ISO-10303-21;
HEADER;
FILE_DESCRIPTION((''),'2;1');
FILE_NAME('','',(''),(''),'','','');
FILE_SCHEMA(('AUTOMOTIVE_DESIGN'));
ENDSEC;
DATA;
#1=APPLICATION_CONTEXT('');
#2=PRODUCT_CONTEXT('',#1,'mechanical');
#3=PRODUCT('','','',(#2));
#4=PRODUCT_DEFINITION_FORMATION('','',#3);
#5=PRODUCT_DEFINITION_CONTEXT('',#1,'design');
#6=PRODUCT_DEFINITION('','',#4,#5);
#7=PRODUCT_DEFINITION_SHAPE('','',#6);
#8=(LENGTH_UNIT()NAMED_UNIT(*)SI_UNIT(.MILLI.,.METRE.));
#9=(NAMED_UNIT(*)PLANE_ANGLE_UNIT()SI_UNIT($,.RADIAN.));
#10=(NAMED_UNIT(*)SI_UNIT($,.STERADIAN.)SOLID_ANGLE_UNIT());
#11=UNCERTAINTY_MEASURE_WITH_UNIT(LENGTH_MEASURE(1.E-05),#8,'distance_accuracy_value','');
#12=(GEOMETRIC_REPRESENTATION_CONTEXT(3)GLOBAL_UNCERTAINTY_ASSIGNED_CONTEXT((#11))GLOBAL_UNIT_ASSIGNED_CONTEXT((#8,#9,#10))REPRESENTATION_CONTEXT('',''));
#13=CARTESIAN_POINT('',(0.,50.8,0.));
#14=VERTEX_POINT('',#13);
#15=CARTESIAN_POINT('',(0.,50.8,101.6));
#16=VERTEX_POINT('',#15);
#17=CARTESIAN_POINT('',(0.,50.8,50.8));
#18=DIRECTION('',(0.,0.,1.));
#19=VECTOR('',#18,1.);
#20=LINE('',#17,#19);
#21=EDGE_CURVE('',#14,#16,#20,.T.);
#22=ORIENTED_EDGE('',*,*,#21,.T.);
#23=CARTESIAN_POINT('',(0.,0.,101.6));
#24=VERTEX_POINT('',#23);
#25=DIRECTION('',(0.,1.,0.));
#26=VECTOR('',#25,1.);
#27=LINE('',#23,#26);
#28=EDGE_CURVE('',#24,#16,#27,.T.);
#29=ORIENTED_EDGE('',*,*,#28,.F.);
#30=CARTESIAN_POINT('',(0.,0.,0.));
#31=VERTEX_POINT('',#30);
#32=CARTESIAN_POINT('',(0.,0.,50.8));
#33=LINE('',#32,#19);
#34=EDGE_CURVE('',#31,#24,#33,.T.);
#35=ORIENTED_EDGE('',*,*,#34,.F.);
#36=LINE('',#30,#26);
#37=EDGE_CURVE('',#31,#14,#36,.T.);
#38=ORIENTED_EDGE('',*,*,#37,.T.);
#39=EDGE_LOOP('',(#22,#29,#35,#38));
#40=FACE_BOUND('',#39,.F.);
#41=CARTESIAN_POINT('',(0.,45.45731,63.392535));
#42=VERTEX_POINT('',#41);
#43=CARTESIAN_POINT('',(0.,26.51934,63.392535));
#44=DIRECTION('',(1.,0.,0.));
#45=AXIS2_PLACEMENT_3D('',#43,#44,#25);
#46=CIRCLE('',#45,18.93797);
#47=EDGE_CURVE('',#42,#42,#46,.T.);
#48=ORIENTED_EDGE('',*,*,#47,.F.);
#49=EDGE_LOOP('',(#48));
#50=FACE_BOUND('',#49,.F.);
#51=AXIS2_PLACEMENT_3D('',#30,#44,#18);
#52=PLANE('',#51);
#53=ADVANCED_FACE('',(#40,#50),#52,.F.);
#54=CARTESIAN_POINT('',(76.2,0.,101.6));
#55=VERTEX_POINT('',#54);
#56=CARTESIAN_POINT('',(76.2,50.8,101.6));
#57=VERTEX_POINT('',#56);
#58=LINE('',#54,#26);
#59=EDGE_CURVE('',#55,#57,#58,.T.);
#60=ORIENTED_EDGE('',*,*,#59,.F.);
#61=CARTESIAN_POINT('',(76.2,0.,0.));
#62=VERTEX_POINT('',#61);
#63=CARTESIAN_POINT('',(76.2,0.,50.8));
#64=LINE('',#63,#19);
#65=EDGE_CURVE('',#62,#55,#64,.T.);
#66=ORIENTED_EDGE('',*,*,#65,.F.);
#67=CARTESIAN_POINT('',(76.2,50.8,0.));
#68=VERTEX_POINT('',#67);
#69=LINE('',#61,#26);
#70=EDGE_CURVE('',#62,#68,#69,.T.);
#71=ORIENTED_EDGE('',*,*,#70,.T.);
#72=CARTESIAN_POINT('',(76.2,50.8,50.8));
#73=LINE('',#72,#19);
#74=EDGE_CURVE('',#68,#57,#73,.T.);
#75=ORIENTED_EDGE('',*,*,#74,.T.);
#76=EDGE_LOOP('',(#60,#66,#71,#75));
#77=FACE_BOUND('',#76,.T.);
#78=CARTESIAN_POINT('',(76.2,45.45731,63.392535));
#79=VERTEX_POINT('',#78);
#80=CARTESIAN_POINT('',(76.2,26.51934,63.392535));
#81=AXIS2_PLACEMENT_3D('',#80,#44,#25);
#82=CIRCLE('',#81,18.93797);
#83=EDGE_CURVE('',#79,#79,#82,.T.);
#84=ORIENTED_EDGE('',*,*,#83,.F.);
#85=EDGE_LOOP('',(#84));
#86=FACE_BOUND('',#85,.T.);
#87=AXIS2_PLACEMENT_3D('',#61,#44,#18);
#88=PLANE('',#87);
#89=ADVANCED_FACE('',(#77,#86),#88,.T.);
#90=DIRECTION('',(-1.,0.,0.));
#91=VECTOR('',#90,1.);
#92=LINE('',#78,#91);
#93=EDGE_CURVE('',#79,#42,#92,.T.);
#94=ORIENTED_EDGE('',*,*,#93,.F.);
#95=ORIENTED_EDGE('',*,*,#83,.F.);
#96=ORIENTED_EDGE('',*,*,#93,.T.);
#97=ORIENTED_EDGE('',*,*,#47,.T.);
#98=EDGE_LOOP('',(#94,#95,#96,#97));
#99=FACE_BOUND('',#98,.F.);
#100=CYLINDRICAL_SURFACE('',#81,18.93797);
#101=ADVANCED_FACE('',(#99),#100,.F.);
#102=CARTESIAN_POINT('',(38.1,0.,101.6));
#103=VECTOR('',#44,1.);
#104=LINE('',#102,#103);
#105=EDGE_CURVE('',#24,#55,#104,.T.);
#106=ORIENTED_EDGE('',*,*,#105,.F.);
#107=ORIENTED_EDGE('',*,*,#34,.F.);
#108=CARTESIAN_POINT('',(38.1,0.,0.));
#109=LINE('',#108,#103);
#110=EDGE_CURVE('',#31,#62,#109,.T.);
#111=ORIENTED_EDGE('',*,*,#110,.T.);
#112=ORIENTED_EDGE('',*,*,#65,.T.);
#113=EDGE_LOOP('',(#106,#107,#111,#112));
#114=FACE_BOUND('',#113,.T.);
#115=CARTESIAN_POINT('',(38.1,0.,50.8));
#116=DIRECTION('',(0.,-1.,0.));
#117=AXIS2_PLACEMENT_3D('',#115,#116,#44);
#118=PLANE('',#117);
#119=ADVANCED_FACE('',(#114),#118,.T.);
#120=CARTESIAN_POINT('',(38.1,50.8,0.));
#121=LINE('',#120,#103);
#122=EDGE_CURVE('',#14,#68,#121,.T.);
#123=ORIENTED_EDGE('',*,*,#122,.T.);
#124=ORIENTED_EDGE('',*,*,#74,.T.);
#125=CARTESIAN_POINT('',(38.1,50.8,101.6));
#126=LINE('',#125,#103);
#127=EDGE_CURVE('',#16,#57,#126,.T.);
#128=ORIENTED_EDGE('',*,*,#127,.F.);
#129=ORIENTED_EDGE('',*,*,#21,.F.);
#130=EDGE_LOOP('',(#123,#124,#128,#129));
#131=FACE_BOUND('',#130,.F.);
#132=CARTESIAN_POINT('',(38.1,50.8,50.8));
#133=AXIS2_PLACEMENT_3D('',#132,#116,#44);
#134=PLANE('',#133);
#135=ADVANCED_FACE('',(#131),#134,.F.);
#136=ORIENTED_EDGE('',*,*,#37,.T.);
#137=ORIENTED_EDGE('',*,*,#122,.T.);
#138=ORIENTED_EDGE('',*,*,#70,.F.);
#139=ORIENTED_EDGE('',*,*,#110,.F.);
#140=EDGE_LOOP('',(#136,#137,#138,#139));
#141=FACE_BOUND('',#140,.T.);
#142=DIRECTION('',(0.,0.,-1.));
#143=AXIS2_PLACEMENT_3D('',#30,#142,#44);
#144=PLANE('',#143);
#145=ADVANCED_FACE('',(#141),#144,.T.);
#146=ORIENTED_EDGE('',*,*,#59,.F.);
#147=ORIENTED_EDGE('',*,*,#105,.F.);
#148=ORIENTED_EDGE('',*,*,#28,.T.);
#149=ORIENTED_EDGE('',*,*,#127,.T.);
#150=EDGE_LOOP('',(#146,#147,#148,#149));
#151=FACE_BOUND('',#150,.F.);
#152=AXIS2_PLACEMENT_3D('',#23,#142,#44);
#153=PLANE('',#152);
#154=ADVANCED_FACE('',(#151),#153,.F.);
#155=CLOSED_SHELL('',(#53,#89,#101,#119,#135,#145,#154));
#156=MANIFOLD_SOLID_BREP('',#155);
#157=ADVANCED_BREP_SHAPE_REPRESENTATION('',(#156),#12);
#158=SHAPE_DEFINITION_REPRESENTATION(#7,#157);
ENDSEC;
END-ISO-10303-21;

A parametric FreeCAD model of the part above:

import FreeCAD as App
import Part
import Sketcher

V = App.Vector
Q = App.Units.Quantity

doc = App.newDocument("Part")
body = doc.addObject("PartDesign::Body", "Body")

# Sketch on XZ plane
sketch1 = body.newObject("Sketcher::SketchObject", "Sketch")
sketch1.AttachmentSupport = (doc.getObject("XZ_Plane"), [""])
sketch1.MapMode = "FlatFace"
sketch1.addGeometry(Part.LineSegment(V(0, 102, 0), V(0, 0, 0)), False)
sketch1.addGeometry(Part.LineSegment(V(0, 0, 0), V(76, 0, 0)), False)
sketch1.addGeometry(Part.LineSegment(V(76, 0, 0), V(76, 102, 0)), False)
sketch1.addGeometry(Part.LineSegment(V(76, 102, 0), V(0, 102, 0)), False)
sketch1.addConstraint(Sketcher.Constraint("Coincident", 0, 2, 1, 1))
sketch1.addConstraint(Sketcher.Constraint("Coincident", 1, 2, 2, 1))
sketch1.addConstraint(Sketcher.Constraint("Coincident", 2, 2, 3, 1))
sketch1.addConstraint(Sketcher.Constraint("Coincident", 3, 2, 0, 1))
sketch1.addConstraint(Sketcher.Constraint("Vertical", 0))
sketch1.addConstraint(Sketcher.Constraint("Horizontal", 1))
sketch1.addConstraint(Sketcher.Constraint("Vertical", 2))
sketch1.addConstraint(Sketcher.Constraint("Horizontal", 3))
sketch1.addConstraint(Sketcher.Constraint("Coincident", 0, 2, -1, 1))
sketch1.addConstraint(Sketcher.Constraint("DistanceX", 1, 1, 1, 2, Q("3 in")))
sketch1.addConstraint(Sketcher.Constraint("DistanceY", 0, 2, 0, 1, Q("4 in")))
pad1 = body.newObject("PartDesign::Pad", "Pad")
pad1.Profile = sketch1
pad1.Length = Q("2 in")
pad1.Reversed = True

# Sketch on YZ plane
sketch2 = body.newObject("Sketcher::SketchObject", "Sketch001")
sketch2.AttachmentSupport = (doc.getObject("YZ_Plane"), [""])
sketch2.MapMode = "FlatFace"
sketch2.AttachmentOffset = App.Placement(V(0, 0, 3 * 25.4), App.Rotation())
sketch2.addGeometry(Part.Circle(V(27, 63, 0), V(0, 0, 1), 19), False)
sketch2.addConstraint(Sketcher.Constraint("Diameter", 0, 37.87594))
sketch2.addConstraint(Sketcher.Constraint("DistanceX", -1, 1, 0, 3, 26.51934))
sketch2.addConstraint(Sketcher.Constraint("DistanceY", -1, 1, 0, 3, 63.392535))
pocket1 = body.newObject("PartDesign::Pocket", "Pocket")
pocket1.Profile = sketch2
pocket1.Type = "ThroughAll"

doc.recompute()
